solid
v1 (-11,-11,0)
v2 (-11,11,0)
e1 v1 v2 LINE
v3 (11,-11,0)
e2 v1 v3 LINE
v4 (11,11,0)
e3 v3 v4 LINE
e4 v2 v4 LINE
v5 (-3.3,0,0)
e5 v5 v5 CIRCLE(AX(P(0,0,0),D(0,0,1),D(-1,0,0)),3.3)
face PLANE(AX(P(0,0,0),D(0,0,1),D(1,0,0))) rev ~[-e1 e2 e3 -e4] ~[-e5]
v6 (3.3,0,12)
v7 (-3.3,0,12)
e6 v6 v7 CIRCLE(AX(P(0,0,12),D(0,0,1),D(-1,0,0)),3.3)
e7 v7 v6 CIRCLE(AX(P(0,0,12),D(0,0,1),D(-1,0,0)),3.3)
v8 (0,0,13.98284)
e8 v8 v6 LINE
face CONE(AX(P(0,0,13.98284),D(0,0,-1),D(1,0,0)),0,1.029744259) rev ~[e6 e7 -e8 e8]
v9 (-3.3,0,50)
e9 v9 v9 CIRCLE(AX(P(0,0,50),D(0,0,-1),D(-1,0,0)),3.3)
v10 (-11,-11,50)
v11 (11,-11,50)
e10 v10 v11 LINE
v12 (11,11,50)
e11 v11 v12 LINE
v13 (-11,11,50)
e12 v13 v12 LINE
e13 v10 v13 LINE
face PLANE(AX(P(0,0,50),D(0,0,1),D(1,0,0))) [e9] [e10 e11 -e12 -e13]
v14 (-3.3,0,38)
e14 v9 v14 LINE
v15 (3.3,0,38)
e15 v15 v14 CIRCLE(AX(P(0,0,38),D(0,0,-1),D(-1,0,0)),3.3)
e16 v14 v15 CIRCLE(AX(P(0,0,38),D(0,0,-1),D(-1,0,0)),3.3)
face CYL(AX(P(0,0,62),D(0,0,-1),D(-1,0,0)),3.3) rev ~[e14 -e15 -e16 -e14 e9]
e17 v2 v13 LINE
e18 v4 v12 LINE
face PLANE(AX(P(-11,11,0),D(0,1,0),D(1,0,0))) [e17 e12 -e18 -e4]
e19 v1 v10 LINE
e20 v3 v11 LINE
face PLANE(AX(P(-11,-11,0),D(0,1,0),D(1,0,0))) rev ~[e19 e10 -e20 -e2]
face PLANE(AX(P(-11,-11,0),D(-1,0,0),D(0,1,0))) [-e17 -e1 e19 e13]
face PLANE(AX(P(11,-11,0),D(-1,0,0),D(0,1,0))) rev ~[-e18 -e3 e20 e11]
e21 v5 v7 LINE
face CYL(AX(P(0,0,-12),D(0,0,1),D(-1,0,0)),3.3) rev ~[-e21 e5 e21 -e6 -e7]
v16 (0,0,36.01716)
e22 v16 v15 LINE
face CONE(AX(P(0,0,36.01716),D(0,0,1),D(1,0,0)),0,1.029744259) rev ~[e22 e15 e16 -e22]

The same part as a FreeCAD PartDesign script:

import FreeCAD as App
import Part
import Sketcher

V = App.Vector
Q = App.Units.Quantity

doc = App.newDocument("Part")
params = doc.addObject("Spreadsheet::Sheet", "Params")
for row, (alias, value) in enumerate([
    ("sketch1_width", "22 mm"),
    ("pad1_length", "50 mm"),
    ("sketch2_diameter", "6.6 mm"),
    ("hole_diameter", "6.6 mm"),
    ("hole_depth", "12 mm"),
    ("sketch3_diameter", "6.6 mm"),
    ("hole2_diameter", "6.6 mm"),
    ("hole2_depth", "12 mm"),
], start=1):
    params.set(f"A{row}", alias)
    params.set(f"B{row}", "=" + value)
    params.setAlias(f"B{row}", alias)

body = doc.addObject("PartDesign::Body", "Body")

# Sketch on XY plane
sketch1 = body.newObject("Sketcher::SketchObject", "Sketch")
sketch1.AttachmentSupport = (doc.getObject("XY_Plane"), [""])
sketch1.MapMode = "FlatFace"
sketch1.addGeometry([
    Part.LineSegment(V(-11, 11, 0), V(-11, -11, 0)),
    Part.LineSegment(V(-11, -11, 0), V(11, -11, 0)),
    Part.LineSegment(V(11, -11, 0), V(11, 11, 0)),
    Part.LineSegment(V(11, 11, 0), V(-11, 11, 0)),
], False)
sketch1.addConstraint([
    Sketcher.Constraint("Coincident", 0, 2, 1, 1),
    Sketcher.Constraint("Coincident", 1, 2, 2, 1),
    Sketcher.Constraint("Coincident", 2, 2, 3, 1),
    Sketcher.Constraint("Coincident", 3, 2, 0, 1),
    Sketcher.Constraint("Vertical", 0),
    Sketcher.Constraint("Horizontal", 1),
    Sketcher.Constraint("Vertical", 2),
    Sketcher.Constraint("Horizontal", 3),
    Sketcher.Constraint("Symmetric", 0, 2, 2, 2, -1, 1),
    Sketcher.Constraint("Equal", 3, 0),
    Sketcher.Constraint("DistanceX", 1, 1, 1, 2, Q("22 mm")),
])
sketch1.setExpression("Constraints[10]", "Params.sketch1_width")
pad1 = body.newObject("PartDesign::Pad", "Pad")
pad1.Profile = sketch1
pad1.setExpression("Length", "Params.pad1_length")

# Sketch on XY plane
sketch2 = body.newObject("Sketcher::SketchObject", "Sketch001")
sketch2.AttachmentSupport = (doc.getObject("XY_Plane"), [""])
sketch2.MapMode = "FlatFace"
sketch2.AttachmentOffset = App.Placement(V(0, 0, 50), App.Rotation())
sketch2.addGeometry(Part.Circle(V(0, 0, 0), V(0, 0, 1), 3.3), False)
sketch2.addConstraint([
    Sketcher.Constraint("Coincident", 0, 3, -1, 1),
    Sketcher.Constraint("Diameter", 0, Q("6.6 mm")),
])
sketch2.setExpression("Constraints[1]", "Params.sketch2_diameter")
doc.recompute()
hole = body.newObject("PartDesign::Hole", "Hole")
hole.Profile = sketch2
hole.ThreadType = "None"
hole.setExpression("Diameter", "Params.hole_diameter")
hole.DepthType = "Dimension"
hole.setExpression("Depth", "Params.hole_depth")
hole.DrillPoint = "Angled"
hole.DrillPointAngle = 118

# Sketch on XY plane
sketch3 = body.newObject("Sketcher::SketchObject", "Sketch002")
sketch3.AttachmentSupport = (doc.getObject("XY_Plane"), [""])
sketch3.MapMode = "FlatFace"
sketch3.addGeometry(Part.Circle(V(0, 0, 0), V(0, 0, 1), 3.3), False)
sketch3.addConstraint([
    Sketcher.Constraint("Coincident", 0, 3, -1, 1),
    Sketcher.Constraint("Diameter", 0, Q("6.6 mm")),
])
sketch3.setExpression("Constraints[1]", "Params.sketch3_diameter")
doc.recompute()
hole2 = body.newObject("PartDesign::Hole", "Hole001")
hole2.Profile = sketch3
hole2.ThreadType = "None"
hole2.setExpression("Diameter", "Params.hole2_diameter")
hole2.DepthType = "Dimension"
hole2.setExpression("Depth", "Params.hole2_depth")
hole2.DrillPoint = "Angled"
hole2.DrillPointAngle = 118
hole2.Reversed = True

doc.recompute()
